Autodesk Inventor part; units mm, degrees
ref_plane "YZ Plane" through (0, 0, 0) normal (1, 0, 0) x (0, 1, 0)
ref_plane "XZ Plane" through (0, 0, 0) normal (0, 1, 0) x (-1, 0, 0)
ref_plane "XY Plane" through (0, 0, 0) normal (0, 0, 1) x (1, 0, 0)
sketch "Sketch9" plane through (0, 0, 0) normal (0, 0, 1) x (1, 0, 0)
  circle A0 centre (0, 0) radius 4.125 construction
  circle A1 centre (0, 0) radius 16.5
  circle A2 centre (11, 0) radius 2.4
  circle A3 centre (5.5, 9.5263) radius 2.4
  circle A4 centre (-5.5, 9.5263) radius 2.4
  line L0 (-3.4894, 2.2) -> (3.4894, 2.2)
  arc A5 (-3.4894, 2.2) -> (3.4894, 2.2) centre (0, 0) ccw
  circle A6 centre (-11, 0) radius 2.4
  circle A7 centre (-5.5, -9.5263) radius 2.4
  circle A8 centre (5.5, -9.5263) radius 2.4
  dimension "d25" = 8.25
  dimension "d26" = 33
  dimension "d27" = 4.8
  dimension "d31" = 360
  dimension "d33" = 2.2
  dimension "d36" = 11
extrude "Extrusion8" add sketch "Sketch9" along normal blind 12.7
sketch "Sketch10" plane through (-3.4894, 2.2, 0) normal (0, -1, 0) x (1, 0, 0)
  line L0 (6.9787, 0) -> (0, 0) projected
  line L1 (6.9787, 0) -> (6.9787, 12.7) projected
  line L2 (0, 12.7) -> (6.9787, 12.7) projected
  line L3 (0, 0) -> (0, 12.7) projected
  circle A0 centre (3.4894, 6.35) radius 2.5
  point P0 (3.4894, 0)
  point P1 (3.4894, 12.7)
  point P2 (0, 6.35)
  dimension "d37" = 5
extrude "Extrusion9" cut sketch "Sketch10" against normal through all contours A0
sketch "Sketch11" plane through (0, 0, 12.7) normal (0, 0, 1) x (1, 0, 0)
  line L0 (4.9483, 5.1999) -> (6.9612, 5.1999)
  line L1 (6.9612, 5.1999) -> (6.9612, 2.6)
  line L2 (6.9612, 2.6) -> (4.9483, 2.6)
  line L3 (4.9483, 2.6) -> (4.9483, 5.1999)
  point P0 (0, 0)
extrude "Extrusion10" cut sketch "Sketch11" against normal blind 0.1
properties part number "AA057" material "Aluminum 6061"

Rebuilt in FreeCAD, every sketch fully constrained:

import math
import FreeCAD as App
import Part
import Sketcher
from FreeCAD import Vector
Q = App.Units.Quantity


def add_polygon(sketch, points):
    """Adds a closed chain of lines whose ends are joined by coincident constraints."""
    first, n = sketch.GeometryCount, len(points)
    for a, b in zip(points, points[1:] + points[:1]):
        sketch.addGeometry(Part.LineSegment(App.Vector(*a, 0), App.Vector(*b, 0)), False)
    for i in range(n):
        sketch.addConstraint(Sketcher.Constraint("Coincident", first + i, 2, first + (i + 1) % n, 1))

doc = App.newDocument("Part")
body = doc.addObject("PartDesign::Body", "Body")

sketch1 = body.newObject("Sketcher::SketchObject", "Sketch")
sketch1.AttachmentSupport = (doc.getObject("XY_Plane"), [""])
sketch1.MapMode = "FlatFace"
sketch1.addGeometry(Part.Circle(Vector(0, 0, 0), Vector(0, 0, 1), 16.5), False)
sketch1.addGeometry(Part.Circle(Vector(-5.5, -9.5, 0), Vector(0, 0, 1), 2.4), False)
sketch1.addGeometry(Part.Circle(Vector(5.5, -9.5, 0), Vector(0, 0, 1), 2.4), False)
sketch1.addGeometry(Part.ArcOfCircle(Part.Circle(Vector(0, 0, 0), Vector(0, 0, 1), 4.1), math.radians(148), math.radians(392)), False)
sketch1.addGeometry(Part.LineSegment(Vector(-3.5, 2.2, 0), Vector(3.5, 2.2, 0)), False)
sketch1.addGeometry(Part.Circle(Vector(-11, 0, 0), Vector(0, 0, 1), 2.4), False)
sketch1.addGeometry(Part.Circle(Vector(-5.5, 9.5, 0), Vector(0, 0, 1), 2.4), False)
sketch1.addGeometry(Part.Circle(Vector(11, 0, 0), Vector(0, 0, 1), 2.4), False)
sketch1.addGeometry(Part.Circle(Vector(5.5, 9.5, 0), Vector(0, 0, 1), 2.4), False)
sketch1.addConstraint(Sketcher.Constraint("Coincident", 3, 1, 4, 1))
sketch1.addConstraint(Sketcher.Constraint("Coincident", 4, 2, 3, 2))
sketch1.addConstraint(Sketcher.Constraint("Horizontal", 4))
sketch1.addConstraint(Sketcher.Constraint("Coincident", 0, 3, -1, 1))
sketch1.addConstraint(Sketcher.Constraint("Coincident", 3, 3, -1, 1))
sketch1.addConstraint(Sketcher.Constraint("Equal", 1, 2))
sketch1.addConstraint(Sketcher.Constraint("Equal", 2, 5))
sketch1.addConstraint(Sketcher.Constraint("Equal", 5, 6))
sketch1.addConstraint(Sketcher.Constraint("Equal", 6, 7))
sketch1.addConstraint(Sketcher.Constraint("Equal", 7, 8))
sketch1.addConstraint(Sketcher.Constraint("Symmetric", 2, 3, 6, 3, -1, 1))
sketch1.addConstraint(Sketcher.Constraint("Symmetric", 5, 3, 7, 3, -1, 1))
sketch1.addConstraint(Sketcher.Constraint("Symmetric", 1, 3, 8, 3, -1, 1))
sketch1.addConstraint(Sketcher.Constraint("Symmetric", 1, 3, 2, 3, -2))
sketch1.addConstraint(Sketcher.Constraint("PointOnObject", 5, 3, -1))
sketch1.addConstraint(Sketcher.Constraint("Diameter", 0, Q("33 mm")))
sketch1.addConstraint(Sketcher.Constraint("Diameter", 1, Q("4.8 mm")))
sketch1.addConstraint(Sketcher.Constraint("DistanceX", 5, 3, -1, 1, Q("11 mm")))
sketch1.addConstraint(Sketcher.Constraint("Radius", 3, Q("4.125 mm")))
sketch1.addConstraint(Sketcher.Constraint("DistanceX", 1, 3, 2, 3, Q("11 mm")))
sketch1.addConstraint(Sketcher.Constraint("DistanceY", -1, 1, 3, 1, Q("2.2 mm")))
sketch1.addConstraint(Sketcher.Constraint("DistanceY", 1, 3, -1, 1, Q("9.5263 mm")))
pad1 = body.newObject("PartDesign::Pad", "Pad")
pad1.Profile = sketch1
pad1.Length = 12.7

sketch2 = body.newObject("Sketcher::SketchObject", "Sketch001")
sketch2.AttachmentSupport = (doc.getObject("XZ_Plane"), [""])
sketch2.MapMode = "FlatFace"
sketch2.AttachmentOffset = App.Placement(Vector(0, 0, -2.2), App.Rotation())
sketch2.addGeometry(Part.Circle(Vector(0, 6.3, 0), Vector(0, 0, 1), 2.5), False)
sketch2.addConstraint(Sketcher.Constraint("PointOnObject", 0, 3, -2))
sketch2.addConstraint(Sketcher.Constraint("Diameter", 0, Q("5 mm")))
sketch2.addConstraint(Sketcher.Constraint("DistanceY", -1, 1, 0, 3, Q("6.35 mm")))
pocket1 = body.newObject("PartDesign::Pocket", "Pocket")
pocket1.Profile = sketch2
pocket1.Type = "ThroughAll"

sketch3 = body.newObject("Sketcher::SketchObject", "Sketch002")
sketch3.AttachmentSupport = (doc.getObject("XY_Plane"), [""])
sketch3.MapMode = "FlatFace"
sketch3.AttachmentOffset = App.Placement(Vector(0, 0, 12.7), App.Rotation())
add_polygon(sketch3, [(7, 5.2), (4.9, 5.2), (4.9, 2.6), (7, 2.6)])
sketch3.addConstraint(Sketcher.Constraint("Horizontal", 0))
sketch3.addConstraint(Sketcher.Constraint("Vertical", 1))
sketch3.addConstraint(Sketcher.Constraint("Horizontal", 2))
sketch3.addConstraint(Sketcher.Constraint("Vertical", 3))
sketch3.addConstraint(Sketcher.Constraint("DistanceY", 1, 2, 1, 1, Q("2.6 mm")))
sketch3.addConstraint(Sketcher.Constraint("DistanceY", -1, 1, 0, 2, Q("5.2 mm")))
sketch3.addConstraint(Sketcher.Constraint("DistanceX", 0, 2, 0, 1, Q("2.013 mm")))
sketch3.addConstraint(Sketcher.Constraint("DistanceX", -1, 1, 0, 2, Q("4.9483 mm")))
pocket2 = body.newObject("PartDesign::Pocket", "Pocket001")
pocket2.Profile = sketch3
pocket2.Length = 0.1

doc.recompute()
